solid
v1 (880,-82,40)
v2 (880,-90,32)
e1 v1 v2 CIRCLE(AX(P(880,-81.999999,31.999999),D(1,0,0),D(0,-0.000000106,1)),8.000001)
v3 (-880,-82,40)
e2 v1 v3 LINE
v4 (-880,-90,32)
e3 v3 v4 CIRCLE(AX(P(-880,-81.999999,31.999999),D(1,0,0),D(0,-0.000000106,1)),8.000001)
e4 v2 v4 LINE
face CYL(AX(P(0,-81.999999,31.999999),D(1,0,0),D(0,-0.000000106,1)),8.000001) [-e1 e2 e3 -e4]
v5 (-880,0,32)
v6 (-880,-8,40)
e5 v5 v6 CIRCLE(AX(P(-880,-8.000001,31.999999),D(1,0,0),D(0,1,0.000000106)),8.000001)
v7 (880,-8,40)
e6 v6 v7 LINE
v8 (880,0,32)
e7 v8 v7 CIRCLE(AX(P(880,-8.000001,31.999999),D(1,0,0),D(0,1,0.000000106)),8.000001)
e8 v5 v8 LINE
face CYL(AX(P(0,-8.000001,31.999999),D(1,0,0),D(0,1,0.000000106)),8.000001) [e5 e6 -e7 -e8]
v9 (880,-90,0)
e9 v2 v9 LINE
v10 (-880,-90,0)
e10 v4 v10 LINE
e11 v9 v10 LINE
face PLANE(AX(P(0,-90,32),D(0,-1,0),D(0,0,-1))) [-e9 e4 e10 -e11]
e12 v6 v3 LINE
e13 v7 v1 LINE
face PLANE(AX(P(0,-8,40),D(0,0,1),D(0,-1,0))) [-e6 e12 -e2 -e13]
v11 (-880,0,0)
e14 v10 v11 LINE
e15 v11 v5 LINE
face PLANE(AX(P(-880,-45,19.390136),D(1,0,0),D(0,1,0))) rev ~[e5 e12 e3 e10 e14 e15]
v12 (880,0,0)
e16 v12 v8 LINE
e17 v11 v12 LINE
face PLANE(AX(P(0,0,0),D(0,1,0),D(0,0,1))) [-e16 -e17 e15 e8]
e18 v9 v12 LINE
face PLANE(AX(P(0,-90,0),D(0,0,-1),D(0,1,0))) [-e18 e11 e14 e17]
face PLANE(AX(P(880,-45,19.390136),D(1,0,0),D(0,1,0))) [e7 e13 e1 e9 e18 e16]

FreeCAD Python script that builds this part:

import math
import FreeCAD as App
import Part
import Sketcher

V = App.Vector
Q = App.Units.Quantity

doc = App.newDocument("Part")
params = doc.addObject("Spreadsheet::Sheet", "Params")
for row, (alias, value) in enumerate([
    ("sketch1_radius", "8.000001 mm"),
    ("sketch1_width", "90 mm"),
    ("sketch1_height", "32 mm"),
    ("pad1_length", "1760 mm"),
], start=1):
    params.set(f"A{row}", alias)
    params.set(f"B{row}", "=" + value)
    params.setAlias(f"B{row}", alias)

body = doc.addObject("PartDesign::Body", "Body")

sketch1 = body.newObject("Sketcher::SketchObject", "Sketch")
sketch1.AttachmentSupport = (doc.getObject("YZ_Plane"), [""])
sketch1.MapMode = "FlatFace"
sketch1.addGeometry([
    Part.LineSegment(V(-90, 0, 0), V(0, 0, 0)),
    Part.LineSegment(V(0, 0, 0), V(0, 32, 0)),
    Part.ArcOfCircle(Part.Circle(V(-8, 32, 0), V(0, 0, 1), 8), math.radians(0), math.radians(90)),
    Part.LineSegment(V(-8, 40, 0), V(-82, 40, 0)),
    Part.ArcOfCircle(Part.Circle(V(-82, 32, 0), V(0, 0, 1), 8), math.radians(90), math.radians(180)),
    Part.LineSegment(V(-90, 32, 0), V(-90, 0, 0)),
], False)
sketch1.addConstraint([
    Sketcher.Constraint("Coincident", 0, 2, 1, 1),
    Sketcher.Constraint("Tangent", 1, 2, 2, 1),
    Sketcher.Constraint("Tangent", 2, 2, 3, 1),
    Sketcher.Constraint("Tangent", 3, 2, 4, 1),
    Sketcher.Constraint("Tangent", 4, 2, 5, 1),
    Sketcher.Constraint("Coincident", 5, 2, 0, 1),
    Sketcher.Constraint("Horizontal", 0),
    Sketcher.Constraint("Vertical", 1),
    Sketcher.Constraint("Horizontal", 3),
    Sketcher.Constraint("Vertical", 5),
    Sketcher.Constraint("Coincident", 0, 2, -1, 1),
    Sketcher.Constraint("Equal", 2, 4),
    Sketcher.Constraint("Radius", 2, Q("8.000001 mm")),
    Sketcher.Constraint("DistanceX", 0, 1, 0, 2, Q("90 mm")),
    Sketcher.Constraint("DistanceY", 1, 1, 1, 2, Q("32 mm")),
])
sketch1.setExpression("Constraints[12]", "Params.sketch1_radius")
sketch1.setExpression("Constraints[13]", "Params.sketch1_width")
sketch1.setExpression("Constraints[14]", "Params.sketch1_height")
pad1 = body.newObject("PartDesign::Pad", "Pad")
pad1.Profile = sketch1
pad1.setExpression("Length", "Params.pad1_length")
pad1.Midplane = True

doc.recompute()
